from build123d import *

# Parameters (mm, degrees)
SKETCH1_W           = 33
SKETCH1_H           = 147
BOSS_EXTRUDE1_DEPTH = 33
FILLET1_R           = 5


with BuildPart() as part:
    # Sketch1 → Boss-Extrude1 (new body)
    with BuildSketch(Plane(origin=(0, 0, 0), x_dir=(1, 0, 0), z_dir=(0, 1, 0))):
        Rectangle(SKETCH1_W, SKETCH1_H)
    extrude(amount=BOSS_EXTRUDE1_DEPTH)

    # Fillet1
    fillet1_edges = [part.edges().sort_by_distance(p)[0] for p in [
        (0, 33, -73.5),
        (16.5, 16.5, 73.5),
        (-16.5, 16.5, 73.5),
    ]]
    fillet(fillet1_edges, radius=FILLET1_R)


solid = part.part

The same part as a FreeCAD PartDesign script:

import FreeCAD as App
import Part
import Sketcher
from FreeCAD import Vector


def edges_at(feature, points):
    """Names of the edges that pass closest to the given points."""
    edges = feature.Shape.Edges
    near = lambda p: min(range(len(edges)), key=lambda i: edges[i].distToShape(Part.Vertex(*p))[0])
    return sorted({f"Edge{near(p) + 1}" for p in points})


def add_polygon(sketch, points):
    """Adds a closed chain of lines whose ends are joined by coincident constraints."""
    first, n = sketch.GeometryCount, len(points)
    for a, b in zip(points, points[1:] + points[:1]):
        sketch.addGeometry(Part.LineSegment(App.Vector(*a, 0), App.Vector(*b, 0)), False)
    for i in range(n):
        sketch.addConstraint(Sketcher.Constraint("Coincident", first + i, 2, first + (i + 1) % n, 1))

doc = App.newDocument("Part")
body = doc.addObject("PartDesign::Body", "Body")

# Sketch on XZ plane
sketch1 = body.newObject("Sketcher::SketchObject", "Sketch")
sketch1.AttachmentSupport = (doc.getObject("XZ_Plane"), [""])
sketch1.MapMode = "FlatFace"
add_polygon(sketch1, [(-16, -74), (-16, 74), (16, 74), (16, -74)])  # lines 0-3
sketch1.addConstraint(Sketcher.Constraint("Vertical", 0))
sketch1.addConstraint(Sketcher.Constraint("Horizontal", 1))
sketch1.addConstraint(Sketcher.Constraint("Vertical", 2))
sketch1.addConstraint(Sketcher.Constraint("Horizontal", 3))
sketch1.addConstraint(Sketcher.Constraint("Symmetric", 0, 2, 2, 2, -1, 1))
sketch1.addConstraint(Sketcher.Constraint("DistanceX", 1, 1, 1, 2, 33.0))
sketch1.addConstraint(Sketcher.Constraint("DistanceY", 0, 1, 0, 2, 147.0))
pad1 = body.newObject("PartDesign::Pad", "Pad")
pad1.Profile = sketch1
pad1.Length = 33
pad1.Reversed = True
doc.recompute()

fillet = body.newObject("PartDesign::Fillet", "Fillet")
fillet.Base = (pad1, edges_at(pad1, [(0, 33, -73.5), (16.5, 16.5, 73.5), (-16.5, 16.5, 73.5)]))
fillet.Radius = 5

doc.recompute()
